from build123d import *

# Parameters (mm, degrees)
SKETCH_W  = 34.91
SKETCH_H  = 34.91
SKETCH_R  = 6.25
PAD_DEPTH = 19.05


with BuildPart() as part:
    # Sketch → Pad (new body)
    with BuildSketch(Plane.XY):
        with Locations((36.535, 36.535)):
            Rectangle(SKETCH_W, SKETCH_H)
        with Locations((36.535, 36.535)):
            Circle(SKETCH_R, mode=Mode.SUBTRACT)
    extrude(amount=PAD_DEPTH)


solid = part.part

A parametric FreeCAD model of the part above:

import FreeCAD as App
import Part
import Sketcher

doc = App.newDocument("Part")
body = doc.addObject("PartDesign::Body", "Body")

sketch1 = body.newObject("Sketcher::SketchObject", "Sketch")
sketch1.AttachmentSupport = (doc.getObject("XY_Plane"), [""])
sketch1.MapMode = "FlatFace"
sketch1.addGeometry([
    Part.LineSegment(App.Vector(19, 54, 0), App.Vector(19, 19, 0)),
    Part.LineSegment(App.Vector(19, 19, 0), App.Vector(54, 19, 0)),
    Part.LineSegment(App.Vector(54, 19, 0), App.Vector(54, 54, 0)),
    Part.LineSegment(App.Vector(54, 54, 0), App.Vector(19, 54, 0)),
    Part.Circle(App.Vector(37, 37, 0), App.Vector(0, 0, 1), 6),
], False)
sketch1.addConstraint([
    Sketcher.Constraint("Coincident", 0, 2, 1, 1),
    Sketcher.Constraint("Coincident", 1, 2, 2, 1),
    Sketcher.Constraint("Coincident", 2, 2, 3, 1),
    Sketcher.Constraint("Coincident", 3, 2, 0, 1),
    Sketcher.Constraint("Vertical", 0),
    Sketcher.Constraint("Horizontal", 1),
    Sketcher.Constraint("Vertical", 2),
    Sketcher.Constraint("Horizontal", 3),
    Sketcher.Constraint("Equal", 3, 0),
    Sketcher.Constraint("Diameter", 4, 12.5),
    Sketcher.Constraint("DistanceX", 1, 1, 1, 2, 34.91),
    Sketcher.Constraint("DistanceX", -1, 1, 0, 2, 19.08),
    Sketcher.Constraint("DistanceY", -1, 1, 0, 2, 19.08),
    Sketcher.Constraint("DistanceX", -1, 1, 4, 3, 36.535),
    Sketcher.Constraint("DistanceY", -1, 1, 4, 3, 36.535),
])
pad1 = body.newObject("PartDesign::Pad", "Pad")
pad1.Profile = sketch1
pad1.Length = 19.05

doc.recompute()
